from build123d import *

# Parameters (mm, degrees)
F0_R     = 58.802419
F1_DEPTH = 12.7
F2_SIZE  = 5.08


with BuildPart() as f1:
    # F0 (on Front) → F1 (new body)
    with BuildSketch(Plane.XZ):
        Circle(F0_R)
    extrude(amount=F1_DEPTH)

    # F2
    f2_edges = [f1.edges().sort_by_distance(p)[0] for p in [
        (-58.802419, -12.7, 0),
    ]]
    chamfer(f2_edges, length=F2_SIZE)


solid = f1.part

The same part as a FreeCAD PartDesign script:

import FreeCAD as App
import Part
import Sketcher

V = App.Vector
Q = App.Units.Quantity


def edges_at(feature, points):
    """Names of the edges that pass closest to the given points."""
    edges = feature.Shape.Edges
    near = lambda p: min(range(len(edges)), key=lambda i: edges[i].distToShape(Part.Vertex(*p))[0])
    return sorted({f"Edge{near(p) + 1}" for p in points})

doc = App.newDocument("Part")
body = doc.addObject("PartDesign::Body", "Body")

# Sketch on XZ plane
sketch1 = doc.addObject("Sketcher::SketchObject", "Sketch")
body.addObject(sketch1)
sketch1.AttachmentSupport = (doc.XZ_Plane, [""])
sketch1.MapMode = "FlatFace"
sketch1.addGeometry(Part.Circle(V(0, 0, 0), V(0, 0, 1), 59), False)
sketch1.addConstraint(Sketcher.Constraint("Coincident", 0, 3, -1, 1))
sketch1.addConstraint(Sketcher.Constraint("Diameter", 0, Q("117.604838 mm")))
pad1 = doc.addObject("PartDesign::Pad", "Pad")
body.addObject(pad1)
pad1.Profile = sketch1
pad1.Length = Q("0.5 in")
doc.recompute()

chamfer = doc.addObject("PartDesign::Chamfer", "Chamfer")
body.addObject(chamfer)
chamfer.Base = (pad1, edges_at(pad1, [(-58.802, -12.7, 0)]))
chamfer.Size = Q("0.2 in")

doc.recompute()
